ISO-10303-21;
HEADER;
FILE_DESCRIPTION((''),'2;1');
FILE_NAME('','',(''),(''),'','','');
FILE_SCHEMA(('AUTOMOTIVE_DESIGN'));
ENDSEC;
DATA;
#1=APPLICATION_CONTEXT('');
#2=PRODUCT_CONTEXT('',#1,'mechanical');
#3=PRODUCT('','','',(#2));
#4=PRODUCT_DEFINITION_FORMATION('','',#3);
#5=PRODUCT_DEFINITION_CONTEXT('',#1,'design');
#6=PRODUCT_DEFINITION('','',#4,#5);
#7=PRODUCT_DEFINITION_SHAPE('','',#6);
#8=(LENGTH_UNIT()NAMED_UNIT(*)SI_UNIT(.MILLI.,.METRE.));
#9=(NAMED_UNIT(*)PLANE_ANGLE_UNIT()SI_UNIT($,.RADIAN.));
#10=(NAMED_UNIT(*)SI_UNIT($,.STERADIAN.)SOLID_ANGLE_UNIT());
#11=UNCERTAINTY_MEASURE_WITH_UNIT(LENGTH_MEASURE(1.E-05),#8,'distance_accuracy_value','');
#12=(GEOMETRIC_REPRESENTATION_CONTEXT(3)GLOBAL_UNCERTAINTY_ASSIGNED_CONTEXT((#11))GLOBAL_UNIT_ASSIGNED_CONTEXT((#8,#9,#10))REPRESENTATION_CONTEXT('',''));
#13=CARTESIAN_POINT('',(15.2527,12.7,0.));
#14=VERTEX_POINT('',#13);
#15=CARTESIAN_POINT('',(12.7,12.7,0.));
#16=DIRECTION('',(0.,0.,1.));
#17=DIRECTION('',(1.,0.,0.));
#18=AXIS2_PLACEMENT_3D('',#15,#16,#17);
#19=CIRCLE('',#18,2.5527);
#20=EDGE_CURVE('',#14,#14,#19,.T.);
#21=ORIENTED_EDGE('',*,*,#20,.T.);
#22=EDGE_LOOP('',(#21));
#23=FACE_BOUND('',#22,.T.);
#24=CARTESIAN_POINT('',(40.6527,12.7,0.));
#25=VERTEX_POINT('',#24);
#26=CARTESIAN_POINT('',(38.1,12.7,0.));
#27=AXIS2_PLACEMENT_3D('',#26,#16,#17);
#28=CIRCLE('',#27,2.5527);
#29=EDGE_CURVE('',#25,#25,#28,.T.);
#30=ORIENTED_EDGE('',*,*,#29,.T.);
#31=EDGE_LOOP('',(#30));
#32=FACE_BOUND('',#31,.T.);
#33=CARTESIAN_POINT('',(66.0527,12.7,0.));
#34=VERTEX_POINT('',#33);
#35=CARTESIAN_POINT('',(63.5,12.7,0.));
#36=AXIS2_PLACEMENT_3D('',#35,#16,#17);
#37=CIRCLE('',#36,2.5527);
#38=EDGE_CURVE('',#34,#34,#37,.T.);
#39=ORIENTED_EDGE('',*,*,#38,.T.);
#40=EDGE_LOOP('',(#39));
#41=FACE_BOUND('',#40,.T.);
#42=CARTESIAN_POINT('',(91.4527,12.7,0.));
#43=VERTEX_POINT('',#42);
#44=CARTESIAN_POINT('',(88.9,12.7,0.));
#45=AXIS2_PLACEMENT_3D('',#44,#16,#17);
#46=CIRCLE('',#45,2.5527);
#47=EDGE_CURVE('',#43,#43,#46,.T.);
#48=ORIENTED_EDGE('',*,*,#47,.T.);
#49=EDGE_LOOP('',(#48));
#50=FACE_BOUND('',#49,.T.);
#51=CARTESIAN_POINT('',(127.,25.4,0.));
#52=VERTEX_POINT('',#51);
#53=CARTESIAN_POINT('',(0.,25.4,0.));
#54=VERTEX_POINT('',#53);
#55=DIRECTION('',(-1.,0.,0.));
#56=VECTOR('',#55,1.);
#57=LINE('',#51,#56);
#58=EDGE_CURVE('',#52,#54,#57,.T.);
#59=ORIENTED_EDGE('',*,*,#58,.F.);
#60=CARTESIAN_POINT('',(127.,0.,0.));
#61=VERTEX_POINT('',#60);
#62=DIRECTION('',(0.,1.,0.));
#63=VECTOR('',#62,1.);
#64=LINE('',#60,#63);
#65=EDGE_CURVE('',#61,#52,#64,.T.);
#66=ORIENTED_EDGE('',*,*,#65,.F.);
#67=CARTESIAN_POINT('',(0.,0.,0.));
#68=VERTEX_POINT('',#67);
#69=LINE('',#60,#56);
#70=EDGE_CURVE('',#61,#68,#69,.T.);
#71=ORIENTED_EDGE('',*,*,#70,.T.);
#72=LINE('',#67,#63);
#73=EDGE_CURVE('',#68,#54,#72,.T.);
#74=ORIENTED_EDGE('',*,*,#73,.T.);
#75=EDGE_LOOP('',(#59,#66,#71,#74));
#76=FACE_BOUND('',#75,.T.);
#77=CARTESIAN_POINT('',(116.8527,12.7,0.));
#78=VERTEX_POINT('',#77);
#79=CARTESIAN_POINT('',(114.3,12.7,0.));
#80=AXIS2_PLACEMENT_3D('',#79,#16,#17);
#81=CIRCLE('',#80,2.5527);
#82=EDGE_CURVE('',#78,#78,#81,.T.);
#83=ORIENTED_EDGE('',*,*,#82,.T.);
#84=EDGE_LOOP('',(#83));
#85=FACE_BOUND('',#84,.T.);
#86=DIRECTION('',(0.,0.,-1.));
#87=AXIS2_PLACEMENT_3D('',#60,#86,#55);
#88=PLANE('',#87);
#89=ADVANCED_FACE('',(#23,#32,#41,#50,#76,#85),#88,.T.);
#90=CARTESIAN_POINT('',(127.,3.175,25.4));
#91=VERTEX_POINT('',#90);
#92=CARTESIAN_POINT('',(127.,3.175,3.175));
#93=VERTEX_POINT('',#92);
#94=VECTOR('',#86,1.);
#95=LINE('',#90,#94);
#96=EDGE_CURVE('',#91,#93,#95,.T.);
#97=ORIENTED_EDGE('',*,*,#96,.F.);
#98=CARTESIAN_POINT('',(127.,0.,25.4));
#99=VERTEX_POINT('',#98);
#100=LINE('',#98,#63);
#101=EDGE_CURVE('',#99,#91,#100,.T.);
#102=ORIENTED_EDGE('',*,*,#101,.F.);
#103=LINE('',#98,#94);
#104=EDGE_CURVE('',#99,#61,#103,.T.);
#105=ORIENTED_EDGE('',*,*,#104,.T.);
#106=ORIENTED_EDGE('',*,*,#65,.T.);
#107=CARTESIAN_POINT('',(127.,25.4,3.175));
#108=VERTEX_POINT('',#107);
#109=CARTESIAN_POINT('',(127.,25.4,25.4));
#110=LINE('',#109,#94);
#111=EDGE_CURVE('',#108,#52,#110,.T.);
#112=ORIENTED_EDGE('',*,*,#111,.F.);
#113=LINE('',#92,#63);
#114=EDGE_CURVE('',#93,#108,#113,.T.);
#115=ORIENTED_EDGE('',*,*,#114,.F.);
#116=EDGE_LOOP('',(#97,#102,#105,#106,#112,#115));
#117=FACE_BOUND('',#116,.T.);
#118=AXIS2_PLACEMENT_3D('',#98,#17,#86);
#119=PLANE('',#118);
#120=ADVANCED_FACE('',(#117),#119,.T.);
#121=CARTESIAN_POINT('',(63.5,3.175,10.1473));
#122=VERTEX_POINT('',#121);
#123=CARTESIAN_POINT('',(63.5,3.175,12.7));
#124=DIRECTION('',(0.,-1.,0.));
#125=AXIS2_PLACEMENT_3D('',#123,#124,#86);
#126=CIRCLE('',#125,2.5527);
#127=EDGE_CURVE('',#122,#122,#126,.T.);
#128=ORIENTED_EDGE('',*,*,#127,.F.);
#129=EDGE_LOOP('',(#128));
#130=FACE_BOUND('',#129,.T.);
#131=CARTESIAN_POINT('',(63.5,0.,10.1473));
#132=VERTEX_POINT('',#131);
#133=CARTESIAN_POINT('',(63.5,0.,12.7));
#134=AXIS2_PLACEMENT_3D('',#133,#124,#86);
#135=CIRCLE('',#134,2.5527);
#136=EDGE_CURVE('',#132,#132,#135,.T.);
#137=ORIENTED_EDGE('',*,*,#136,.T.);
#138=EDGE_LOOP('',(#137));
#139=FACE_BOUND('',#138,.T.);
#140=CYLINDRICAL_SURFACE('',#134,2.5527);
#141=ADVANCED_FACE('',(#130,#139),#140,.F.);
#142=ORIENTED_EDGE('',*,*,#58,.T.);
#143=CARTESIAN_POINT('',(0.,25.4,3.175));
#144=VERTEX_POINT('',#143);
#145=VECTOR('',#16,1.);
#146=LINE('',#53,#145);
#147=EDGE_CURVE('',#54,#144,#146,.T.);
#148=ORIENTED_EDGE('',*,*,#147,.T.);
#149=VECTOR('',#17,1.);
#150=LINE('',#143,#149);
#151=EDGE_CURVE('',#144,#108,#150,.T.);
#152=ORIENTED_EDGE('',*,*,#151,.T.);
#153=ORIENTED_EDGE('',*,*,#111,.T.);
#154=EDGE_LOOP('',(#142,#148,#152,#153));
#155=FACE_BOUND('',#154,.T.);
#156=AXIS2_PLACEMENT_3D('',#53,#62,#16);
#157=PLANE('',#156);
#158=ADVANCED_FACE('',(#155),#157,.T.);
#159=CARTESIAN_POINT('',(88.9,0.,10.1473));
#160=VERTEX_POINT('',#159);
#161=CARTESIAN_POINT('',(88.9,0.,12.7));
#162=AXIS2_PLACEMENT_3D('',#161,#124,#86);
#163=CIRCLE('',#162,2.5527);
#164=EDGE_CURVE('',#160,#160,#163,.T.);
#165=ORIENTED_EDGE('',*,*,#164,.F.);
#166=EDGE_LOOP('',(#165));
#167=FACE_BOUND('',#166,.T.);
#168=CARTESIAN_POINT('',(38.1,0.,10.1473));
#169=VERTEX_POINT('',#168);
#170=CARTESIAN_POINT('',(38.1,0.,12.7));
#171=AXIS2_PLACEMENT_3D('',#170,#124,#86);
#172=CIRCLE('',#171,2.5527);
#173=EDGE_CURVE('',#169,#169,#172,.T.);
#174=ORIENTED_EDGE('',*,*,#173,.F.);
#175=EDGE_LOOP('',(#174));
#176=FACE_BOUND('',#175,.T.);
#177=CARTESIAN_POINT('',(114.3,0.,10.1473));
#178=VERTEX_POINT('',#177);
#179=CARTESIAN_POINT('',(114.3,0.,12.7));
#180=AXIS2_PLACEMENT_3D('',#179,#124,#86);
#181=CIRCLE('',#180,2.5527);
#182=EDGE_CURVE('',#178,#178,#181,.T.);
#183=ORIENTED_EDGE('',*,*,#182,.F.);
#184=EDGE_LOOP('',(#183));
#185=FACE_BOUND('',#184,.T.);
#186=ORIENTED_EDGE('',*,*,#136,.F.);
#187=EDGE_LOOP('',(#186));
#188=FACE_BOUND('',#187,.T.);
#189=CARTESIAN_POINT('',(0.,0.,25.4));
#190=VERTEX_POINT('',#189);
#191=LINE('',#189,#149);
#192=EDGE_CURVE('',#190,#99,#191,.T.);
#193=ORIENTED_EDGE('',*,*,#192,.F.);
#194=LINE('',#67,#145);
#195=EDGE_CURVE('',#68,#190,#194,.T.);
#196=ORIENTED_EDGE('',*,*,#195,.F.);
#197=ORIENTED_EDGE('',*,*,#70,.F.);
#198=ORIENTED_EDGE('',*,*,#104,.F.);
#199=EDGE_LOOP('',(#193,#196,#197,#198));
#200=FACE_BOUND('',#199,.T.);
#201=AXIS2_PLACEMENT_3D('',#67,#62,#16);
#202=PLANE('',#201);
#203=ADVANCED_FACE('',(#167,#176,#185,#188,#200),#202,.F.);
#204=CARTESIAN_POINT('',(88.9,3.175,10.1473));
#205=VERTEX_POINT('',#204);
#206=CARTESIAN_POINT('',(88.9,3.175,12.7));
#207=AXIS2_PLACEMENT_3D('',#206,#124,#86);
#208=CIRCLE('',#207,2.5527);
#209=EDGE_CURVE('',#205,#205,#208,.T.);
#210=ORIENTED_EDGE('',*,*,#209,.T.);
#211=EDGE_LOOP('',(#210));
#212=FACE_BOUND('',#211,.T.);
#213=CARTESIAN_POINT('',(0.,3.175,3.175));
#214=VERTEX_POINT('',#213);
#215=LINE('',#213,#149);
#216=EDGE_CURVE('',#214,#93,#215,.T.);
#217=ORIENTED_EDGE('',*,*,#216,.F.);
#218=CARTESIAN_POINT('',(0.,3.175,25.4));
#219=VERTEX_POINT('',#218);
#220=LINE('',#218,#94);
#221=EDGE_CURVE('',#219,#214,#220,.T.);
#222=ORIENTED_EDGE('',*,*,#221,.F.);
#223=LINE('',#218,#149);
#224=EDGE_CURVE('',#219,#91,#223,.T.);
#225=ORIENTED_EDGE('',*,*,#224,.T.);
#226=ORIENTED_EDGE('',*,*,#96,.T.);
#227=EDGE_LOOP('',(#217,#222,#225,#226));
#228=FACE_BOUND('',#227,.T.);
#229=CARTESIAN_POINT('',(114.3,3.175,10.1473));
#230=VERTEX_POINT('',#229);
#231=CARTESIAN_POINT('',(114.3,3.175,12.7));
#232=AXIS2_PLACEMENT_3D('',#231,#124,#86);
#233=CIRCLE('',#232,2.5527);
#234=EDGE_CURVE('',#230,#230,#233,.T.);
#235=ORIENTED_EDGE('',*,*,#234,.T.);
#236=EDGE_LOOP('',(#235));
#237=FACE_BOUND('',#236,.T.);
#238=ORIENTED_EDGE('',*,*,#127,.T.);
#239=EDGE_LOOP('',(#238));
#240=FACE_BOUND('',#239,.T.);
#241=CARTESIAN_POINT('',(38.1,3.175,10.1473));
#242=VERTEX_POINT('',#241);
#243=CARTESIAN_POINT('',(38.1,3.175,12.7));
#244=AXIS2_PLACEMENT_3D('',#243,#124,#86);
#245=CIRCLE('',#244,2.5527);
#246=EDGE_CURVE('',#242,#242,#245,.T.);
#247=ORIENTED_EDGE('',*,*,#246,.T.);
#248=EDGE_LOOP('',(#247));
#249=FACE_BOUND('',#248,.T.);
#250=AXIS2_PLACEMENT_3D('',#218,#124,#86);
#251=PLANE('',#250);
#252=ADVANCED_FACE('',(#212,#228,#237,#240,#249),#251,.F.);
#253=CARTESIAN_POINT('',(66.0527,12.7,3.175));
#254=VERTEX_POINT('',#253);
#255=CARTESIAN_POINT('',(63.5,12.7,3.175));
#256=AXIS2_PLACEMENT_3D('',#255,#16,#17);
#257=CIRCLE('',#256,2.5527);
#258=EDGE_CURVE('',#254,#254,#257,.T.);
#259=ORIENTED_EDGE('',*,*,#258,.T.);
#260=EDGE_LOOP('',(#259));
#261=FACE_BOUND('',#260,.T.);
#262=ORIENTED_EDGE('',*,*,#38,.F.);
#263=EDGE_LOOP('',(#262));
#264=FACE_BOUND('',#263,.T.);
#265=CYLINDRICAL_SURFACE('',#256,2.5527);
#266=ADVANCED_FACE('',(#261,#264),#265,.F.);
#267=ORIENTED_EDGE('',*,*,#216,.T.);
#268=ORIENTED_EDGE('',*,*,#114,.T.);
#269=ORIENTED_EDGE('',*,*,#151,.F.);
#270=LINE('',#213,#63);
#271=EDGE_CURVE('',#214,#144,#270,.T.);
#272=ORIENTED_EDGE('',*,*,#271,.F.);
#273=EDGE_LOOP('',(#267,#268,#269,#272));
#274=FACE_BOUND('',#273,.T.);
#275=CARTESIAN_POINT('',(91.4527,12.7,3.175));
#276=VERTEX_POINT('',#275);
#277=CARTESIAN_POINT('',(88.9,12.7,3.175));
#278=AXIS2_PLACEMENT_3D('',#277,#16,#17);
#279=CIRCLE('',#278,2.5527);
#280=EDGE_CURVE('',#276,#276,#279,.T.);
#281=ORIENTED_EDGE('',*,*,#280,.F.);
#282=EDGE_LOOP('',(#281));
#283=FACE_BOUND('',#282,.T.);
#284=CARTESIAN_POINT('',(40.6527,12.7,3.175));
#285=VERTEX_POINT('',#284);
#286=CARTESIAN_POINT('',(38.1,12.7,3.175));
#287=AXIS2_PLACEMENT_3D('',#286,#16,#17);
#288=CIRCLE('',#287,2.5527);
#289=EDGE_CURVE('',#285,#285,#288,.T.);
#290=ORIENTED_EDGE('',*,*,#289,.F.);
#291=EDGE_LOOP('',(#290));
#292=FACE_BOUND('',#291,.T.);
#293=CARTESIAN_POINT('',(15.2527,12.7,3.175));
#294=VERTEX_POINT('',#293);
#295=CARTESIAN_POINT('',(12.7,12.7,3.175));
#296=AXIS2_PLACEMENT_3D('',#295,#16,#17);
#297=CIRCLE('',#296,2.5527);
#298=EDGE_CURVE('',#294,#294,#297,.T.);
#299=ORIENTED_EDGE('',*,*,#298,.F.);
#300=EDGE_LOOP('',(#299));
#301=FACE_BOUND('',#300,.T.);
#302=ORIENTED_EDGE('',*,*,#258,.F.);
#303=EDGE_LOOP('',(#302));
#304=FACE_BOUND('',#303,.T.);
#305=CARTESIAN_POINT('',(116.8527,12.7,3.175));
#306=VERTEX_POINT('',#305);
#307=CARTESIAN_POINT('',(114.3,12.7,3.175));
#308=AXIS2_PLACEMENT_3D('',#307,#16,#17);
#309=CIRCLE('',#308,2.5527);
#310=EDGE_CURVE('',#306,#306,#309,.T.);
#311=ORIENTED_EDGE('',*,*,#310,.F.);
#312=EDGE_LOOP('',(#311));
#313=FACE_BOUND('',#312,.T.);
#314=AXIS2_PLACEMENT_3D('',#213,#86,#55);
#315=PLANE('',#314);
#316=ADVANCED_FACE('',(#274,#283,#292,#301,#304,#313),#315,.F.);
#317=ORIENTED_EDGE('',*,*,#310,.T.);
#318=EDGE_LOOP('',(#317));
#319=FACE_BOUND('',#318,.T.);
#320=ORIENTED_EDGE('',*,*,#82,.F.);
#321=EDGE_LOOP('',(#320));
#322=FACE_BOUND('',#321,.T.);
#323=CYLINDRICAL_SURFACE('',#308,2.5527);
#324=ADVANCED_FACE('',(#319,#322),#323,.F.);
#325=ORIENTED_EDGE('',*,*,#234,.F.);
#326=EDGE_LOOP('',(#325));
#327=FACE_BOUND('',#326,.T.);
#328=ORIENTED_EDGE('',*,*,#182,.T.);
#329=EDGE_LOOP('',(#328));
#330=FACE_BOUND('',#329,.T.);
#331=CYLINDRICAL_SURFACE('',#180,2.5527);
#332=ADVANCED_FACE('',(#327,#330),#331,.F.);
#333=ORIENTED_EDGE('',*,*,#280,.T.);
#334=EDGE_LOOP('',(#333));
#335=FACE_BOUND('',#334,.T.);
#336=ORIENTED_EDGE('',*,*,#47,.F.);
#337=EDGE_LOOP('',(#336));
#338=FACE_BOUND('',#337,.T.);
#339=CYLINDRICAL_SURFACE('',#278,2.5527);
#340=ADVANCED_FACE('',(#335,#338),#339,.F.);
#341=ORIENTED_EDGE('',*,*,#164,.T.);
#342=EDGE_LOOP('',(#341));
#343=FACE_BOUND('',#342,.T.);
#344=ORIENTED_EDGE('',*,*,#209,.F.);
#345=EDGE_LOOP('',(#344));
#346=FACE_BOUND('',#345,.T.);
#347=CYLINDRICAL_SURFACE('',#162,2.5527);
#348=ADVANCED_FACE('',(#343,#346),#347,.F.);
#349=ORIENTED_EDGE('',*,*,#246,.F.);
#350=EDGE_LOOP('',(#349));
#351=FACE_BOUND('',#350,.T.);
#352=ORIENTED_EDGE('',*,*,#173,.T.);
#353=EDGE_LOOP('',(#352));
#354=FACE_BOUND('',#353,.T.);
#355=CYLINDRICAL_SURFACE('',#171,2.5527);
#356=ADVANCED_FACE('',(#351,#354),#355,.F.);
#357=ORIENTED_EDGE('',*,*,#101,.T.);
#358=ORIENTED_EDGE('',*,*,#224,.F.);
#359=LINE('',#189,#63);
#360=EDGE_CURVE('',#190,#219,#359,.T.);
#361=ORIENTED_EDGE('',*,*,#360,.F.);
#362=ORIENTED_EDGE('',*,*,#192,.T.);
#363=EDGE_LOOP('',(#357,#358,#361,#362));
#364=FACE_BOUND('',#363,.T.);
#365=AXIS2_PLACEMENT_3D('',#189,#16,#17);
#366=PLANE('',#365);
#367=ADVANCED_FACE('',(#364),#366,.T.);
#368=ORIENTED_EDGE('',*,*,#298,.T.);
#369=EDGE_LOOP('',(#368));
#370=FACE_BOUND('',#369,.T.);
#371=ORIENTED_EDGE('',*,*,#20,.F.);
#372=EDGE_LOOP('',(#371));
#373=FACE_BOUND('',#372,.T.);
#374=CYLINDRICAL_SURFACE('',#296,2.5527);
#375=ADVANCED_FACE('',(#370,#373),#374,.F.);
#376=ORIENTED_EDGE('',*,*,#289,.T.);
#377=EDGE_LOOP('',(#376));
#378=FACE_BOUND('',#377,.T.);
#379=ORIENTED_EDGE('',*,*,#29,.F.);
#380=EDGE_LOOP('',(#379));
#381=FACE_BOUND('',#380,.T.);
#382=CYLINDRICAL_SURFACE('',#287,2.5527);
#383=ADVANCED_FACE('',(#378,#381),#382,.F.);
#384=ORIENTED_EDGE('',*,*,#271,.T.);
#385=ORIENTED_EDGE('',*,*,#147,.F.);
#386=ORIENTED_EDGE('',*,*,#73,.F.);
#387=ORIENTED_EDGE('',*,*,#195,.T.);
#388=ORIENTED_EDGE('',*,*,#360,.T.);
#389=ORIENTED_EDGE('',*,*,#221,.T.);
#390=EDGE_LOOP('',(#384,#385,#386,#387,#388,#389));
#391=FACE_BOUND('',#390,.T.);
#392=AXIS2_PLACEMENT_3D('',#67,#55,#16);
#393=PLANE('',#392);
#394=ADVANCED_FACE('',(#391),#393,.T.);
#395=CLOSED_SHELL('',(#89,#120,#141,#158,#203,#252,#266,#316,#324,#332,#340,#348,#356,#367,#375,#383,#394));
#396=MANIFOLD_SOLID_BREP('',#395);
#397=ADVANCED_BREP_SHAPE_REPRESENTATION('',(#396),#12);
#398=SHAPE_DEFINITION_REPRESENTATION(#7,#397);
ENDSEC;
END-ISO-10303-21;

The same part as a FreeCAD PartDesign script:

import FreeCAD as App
import Part
import Sketcher
from FreeCAD import Vector
Q = App.Units.Quantity


def add_polygon(sketch, points):
    """Adds a closed chain of lines whose ends are joined by coincident constraints."""
    first, n = sketch.GeometryCount, len(points)
    for a, b in zip(points, points[1:] + points[:1]):
        sketch.addGeometry(Part.LineSegment(App.Vector(*a, 0), App.Vector(*b, 0)), False)
    for i in range(n):
        sketch.addConstraint(Sketcher.Constraint("Coincident", first + i, 2, first + (i + 1) % n, 1))

doc = App.newDocument("Part")
body = doc.addObject("PartDesign::Body", "Body")

sketch1 = doc.addObject("Sketcher::SketchObject", "Sketch")
body.addObject(sketch1)
sketch1.AttachmentSupport = (doc.XZ_Plane, [""])
sketch1.MapMode = "FlatFace"
sketch1.AttachmentOffset = App.Placement(Vector(0, 0, -1 * 25.4), App.Rotation())
add_polygon(sketch1, [(0, 0), (0, 25), (127, 25), (127, 0)])
sketch1.addConstraint([
    Sketcher.Constraint("Vertical", 0),
    Sketcher.Constraint("Horizontal", 1),
    Sketcher.Constraint("Vertical", 2),
    Sketcher.Constraint("Horizontal", 3),
    Sketcher.Constraint("Coincident", 3, 2, -1, 1),
    Sketcher.Constraint("DistanceX", 1, 1, 1, 2, Q("5 in")),
    Sketcher.Constraint("DistanceY", 0, 1, 0, 2, Q("1 in")),
])
pad1 = doc.addObject("PartDesign::Pad", "Pad")
body.addObject(pad1)
pad1.Profile = sketch1
pad1.Length = Q("1 in")

sketch2 = doc.addObject("Sketcher::SketchObject", "Sketch001")
body.addObject(sketch2)
sketch2.AttachmentSupport = (doc.YZ_Plane, [""])
sketch2.MapMode = "FlatFace"
sketch2.AttachmentOffset = App.Placement(Vector(0, 0, 5 * 25.4), App.Rotation())
add_polygon(sketch2, [(25, 25), (3, 25), (3, 3), (25, 3)])
sketch2.addConstraint([
    Sketcher.Constraint("Horizontal", 0),
    Sketcher.Constraint("Vertical", 1),
    Sketcher.Constraint("Horizontal", 2),
    Sketcher.Constraint("Vertical", 3),
    Sketcher.Constraint("Equal", 2, 1),
    Sketcher.Constraint("DistanceY", -1, 1, 0, 2, Q("1 in")),
    Sketcher.Constraint("DistanceX", -1, 1, 2, 2, Q("1 in")),
    Sketcher.Constraint("DistanceX", 0, 2, 0, 1, Q("0.875 in")),
])
pocket1 = doc.addObject("PartDesign::Pocket", "Pocket")
body.addObject(pocket1)
pocket1.Profile = sketch2
pocket1.Type = "ThroughAll"

sketch3 = doc.addObject("Sketcher::SketchObject", "Sketch002")
body.addObject(sketch3)
sketch3.AttachmentSupport = (doc.XZ_Plane, [""])
sketch3.MapMode = "FlatFace"
sketch3.addGeometry([
    Part.Circle(Vector(-12.7, -12.7, 0), Vector(0, 0, 1), 2.6),
    Part.Circle(Vector(38.1, 12.7, 0), Vector(0, 0, 1), 2.6),
    Part.Circle(Vector(63.5, 12.7, 0), Vector(0, 0, 1), 2.6),
    Part.Circle(Vector(88.9, 12.7, 0), Vector(0, 0, 1), 2.6),
    Part.Circle(Vector(114.3, 12.7, 0), Vector(0, 0, 1), 2.6),
], False)
sketch3.addConstraint([
    Sketcher.Constraint("Equal", 0, 1),
    Sketcher.Constraint("Equal", 1, 2),
    Sketcher.Constraint("Equal", 2, 3),
    Sketcher.Constraint("Equal", 3, 4),
    Sketcher.Constraint("Horizontal", 1, 3, 2, 3),
    Sketcher.Constraint("Horizontal", 2, 3, 3, 3),
    Sketcher.Constraint("Horizontal", 3, 3, 4, 3),
    Sketcher.Constraint("Diameter", 0, Q("0.201 in")),
    Sketcher.Constraint("DistanceX", 0, 3, 1, 3, Q("2 in")),
    Sketcher.Constraint("DistanceY", 0, 3, 1, 3, Q("1 in")),
    Sketcher.Constraint("DistanceX", 1, 3, 2, 3, Q("1 in")),
    Sketcher.Constraint("DistanceX", 2, 3, 3, 3, Q("1 in")),
    Sketcher.Constraint("DistanceX", 3, 3, 4, 3, Q("1 in")),
    Sketcher.Constraint("DistanceX", 0, 3, -1, 1, Q("0.5 in")),
    Sketcher.Constraint("DistanceY", 0, 3, -1, 1, Q("0.5 in")),
])
doc.recompute()
hole = doc.addObject("PartDesign::Hole", "Hole")
body.addObject(hole)
hole.Profile = sketch3
hole.ThreadType = "None"
hole.Diameter = Q("0.201 in")
hole.DepthType = "Dimension"
hole.Depth = Q("1 in")
hole.DrillPoint = "Flat"

sketch4 = doc.addObject("Sketcher::SketchObject", "Sketch003")
body.addObject(sketch4)
sketch4.AttachmentSupport = (doc.XY_Plane, [""])
sketch4.MapMode = "FlatFace"
sketch4.AttachmentOffset = App.Placement(Vector(0, 0, 0.125 * 25.4), App.Rotation())
sketch4.addGeometry([
    Part.Circle(Vector(12.7, 12.7, 0), Vector(0, 0, 1), 2.6),
    Part.Circle(Vector(38.1, 12.7, 0), Vector(0, 0, 1), 2.6),
    Part.Circle(Vector(63.5, 12.7, 0), Vector(0, 0, 1), 2.6),
    Part.Circle(Vector(88.9, 12.7, 0), Vector(0, 0, 1), 2.6),
    Part.Circle(Vector(114.3, 12.7, 0), Vector(0, 0, 1), 2.6),
], False)
sketch4.addConstraint([
    Sketcher.Constraint("Equal", 0, 1),
    Sketcher.Constraint("Equal", 1, 2),
    Sketcher.Constraint("Equal", 2, 3),
    Sketcher.Constraint("Equal", 3, 4),
    Sketcher.Constraint("Horizontal", 0, 3, 1, 3),
    Sketcher.Constraint("Horizontal", 1, 3, 2, 3),
    Sketcher.Constraint("Horizontal", 2, 3, 3, 3),
    Sketcher.Constraint("Horizontal", 3, 3, 4, 3),
    Sketcher.Constraint("Diameter", 0, Q("0.201 in")),
    Sketcher.Constraint("DistanceX", 0, 3, 1, 3, Q("1 in")),
    Sketcher.Constraint("DistanceX", 1, 3, 2, 3, Q("1 in")),
    Sketcher.Constraint("DistanceX", 2, 3, 3, 3, Q("1 in")),
    Sketcher.Constraint("DistanceX", 3, 3, 4, 3, Q("1 in")),
    Sketcher.Constraint("DistanceX", -1, 1, 0, 3, Q("0.5 in")),
    Sketcher.Constraint("DistanceY", -1, 1, 0, 3, Q("0.5 in")),
])
doc.recompute()
hole2 = doc.addObject("PartDesign::Hole", "Hole001")
body.addObject(hole2)
hole2.Profile = sketch4
hole2.ThreadType = "None"
hole2.Diameter = Q("0.201 in")
hole2.DepthType = "ThroughAll"

doc.recompute()
